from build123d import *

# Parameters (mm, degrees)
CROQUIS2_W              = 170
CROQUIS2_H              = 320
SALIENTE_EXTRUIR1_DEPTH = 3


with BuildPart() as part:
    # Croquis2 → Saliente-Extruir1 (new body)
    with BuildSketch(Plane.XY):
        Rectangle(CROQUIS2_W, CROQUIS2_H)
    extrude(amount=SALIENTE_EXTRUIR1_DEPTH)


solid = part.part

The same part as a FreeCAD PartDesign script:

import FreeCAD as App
import Part
import Sketcher
from FreeCAD import Vector
Q = App.Units.Quantity

doc = App.newDocument("Part")
params = doc.addObject("Spreadsheet::Sheet", "Params")
for row, (alias, value) in enumerate([
    ("sketch1_width", "170 mm"),
    ("sketch1_height", "320 mm"),
    ("pad1_length", "3 mm"),
], start=1):
    params.set(f"A{row}", alias)
    params.set(f"B{row}", "=" + value)
    params.setAlias(f"B{row}", alias)

body = doc.addObject("PartDesign::Body", "Body")

sketch1 = body.newObject("Sketcher::SketchObject", "Sketch")
sketch1.AttachmentSupport = (doc.getObject("XY_Plane"), [""])
sketch1.MapMode = "FlatFace"
sketch1.addGeometry([
    Part.LineSegment(Vector(-85, 160, 0), Vector(-85, -160, 0)),
    Part.LineSegment(Vector(-85, -160, 0), Vector(85, -160, 0)),
    Part.LineSegment(Vector(85, -160, 0), Vector(85, 160, 0)),
    Part.LineSegment(Vector(85, 160, 0), Vector(-85, 160, 0)),
], False)
sketch1.addConstraint([
    Sketcher.Constraint("Coincident", 0, 2, 1, 1),
    Sketcher.Constraint("Coincident", 1, 2, 2, 1),
    Sketcher.Constraint("Coincident", 2, 2, 3, 1),
    Sketcher.Constraint("Coincident", 3, 2, 0, 1),
    Sketcher.Constraint("Vertical", 0),
    Sketcher.Constraint("Horizontal", 1),
    Sketcher.Constraint("Vertical", 2),
    Sketcher.Constraint("Horizontal", 3),
    Sketcher.Constraint("Symmetric", 0, 2, 2, 2, -1, 1),
    Sketcher.Constraint("DistanceX", 1, 1, 1, 2, Q("170 mm")),
    Sketcher.Constraint("DistanceY", 0, 2, 0, 1, Q("320 mm")),
])
sketch1.setExpression("Constraints[9]", "Params.sketch1_width")
sketch1.setExpression("Constraints[10]", "Params.sketch1_height")
pad1 = body.newObject("PartDesign::Pad", "Pad")
pad1.Profile = sketch1
pad1.setExpression("Length", "Params.pad1_length")

doc.recompute()
